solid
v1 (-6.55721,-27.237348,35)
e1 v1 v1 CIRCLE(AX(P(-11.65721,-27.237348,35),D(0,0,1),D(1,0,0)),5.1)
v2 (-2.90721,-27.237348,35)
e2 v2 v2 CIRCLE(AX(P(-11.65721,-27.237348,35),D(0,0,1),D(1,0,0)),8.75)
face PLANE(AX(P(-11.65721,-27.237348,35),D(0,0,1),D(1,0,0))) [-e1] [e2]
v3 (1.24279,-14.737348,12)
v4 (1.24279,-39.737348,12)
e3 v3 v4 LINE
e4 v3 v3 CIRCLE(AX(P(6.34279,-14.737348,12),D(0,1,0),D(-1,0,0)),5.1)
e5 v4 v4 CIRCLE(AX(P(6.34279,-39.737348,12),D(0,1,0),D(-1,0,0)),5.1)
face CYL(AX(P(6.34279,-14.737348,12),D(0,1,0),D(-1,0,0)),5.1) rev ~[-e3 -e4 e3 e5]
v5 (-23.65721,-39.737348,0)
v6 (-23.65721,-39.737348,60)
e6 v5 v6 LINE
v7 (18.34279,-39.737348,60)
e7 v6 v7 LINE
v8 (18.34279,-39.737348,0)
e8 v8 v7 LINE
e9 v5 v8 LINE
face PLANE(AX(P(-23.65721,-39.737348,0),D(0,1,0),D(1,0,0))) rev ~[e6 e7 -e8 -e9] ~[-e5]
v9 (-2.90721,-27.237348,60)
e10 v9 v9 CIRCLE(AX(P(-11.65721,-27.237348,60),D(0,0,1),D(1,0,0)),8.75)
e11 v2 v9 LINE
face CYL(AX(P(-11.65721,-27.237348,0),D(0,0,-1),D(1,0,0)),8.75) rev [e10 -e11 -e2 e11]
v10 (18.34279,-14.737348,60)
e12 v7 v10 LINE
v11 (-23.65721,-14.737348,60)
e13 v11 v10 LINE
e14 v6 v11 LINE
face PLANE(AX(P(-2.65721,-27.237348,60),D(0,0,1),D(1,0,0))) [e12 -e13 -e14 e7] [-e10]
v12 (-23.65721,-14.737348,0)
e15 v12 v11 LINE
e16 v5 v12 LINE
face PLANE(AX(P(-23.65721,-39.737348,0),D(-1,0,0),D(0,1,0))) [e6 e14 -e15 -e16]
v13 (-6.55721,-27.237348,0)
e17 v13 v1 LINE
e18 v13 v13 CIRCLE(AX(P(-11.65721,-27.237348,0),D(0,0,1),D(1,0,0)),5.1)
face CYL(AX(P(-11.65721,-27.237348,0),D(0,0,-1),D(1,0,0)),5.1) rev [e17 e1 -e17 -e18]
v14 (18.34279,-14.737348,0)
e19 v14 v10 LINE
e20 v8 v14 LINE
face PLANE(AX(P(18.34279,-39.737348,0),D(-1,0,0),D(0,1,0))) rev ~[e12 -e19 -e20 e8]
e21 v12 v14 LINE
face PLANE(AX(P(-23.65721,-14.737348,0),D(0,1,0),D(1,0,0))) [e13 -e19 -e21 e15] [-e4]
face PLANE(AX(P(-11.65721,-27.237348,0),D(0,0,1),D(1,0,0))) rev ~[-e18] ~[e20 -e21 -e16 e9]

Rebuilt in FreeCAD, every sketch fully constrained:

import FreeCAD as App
import Part
import Sketcher
from FreeCAD import Vector


def add_polygon(sketch, points):
    """Adds a closed chain of lines whose ends are joined by coincident constraints."""
    first, n = sketch.GeometryCount, len(points)
    for a, b in zip(points, points[1:] + points[:1]):
        sketch.addGeometry(Part.LineSegment(App.Vector(*a, 0), App.Vector(*b, 0)), False)
    for i in range(n):
        sketch.addConstraint(Sketcher.Constraint("Coincident", first + i, 2, first + (i + 1) % n, 1))

doc = App.newDocument("Part")
body = doc.addObject("PartDesign::Body", "Body")

# Sketch on XY plane
sketch1 = body.newObject("Sketcher::SketchObject", "Sketch")
sketch1.AttachmentSupport = (doc.getObject("XY_Plane"), [""])
sketch1.MapMode = "FlatFace"
add_polygon(sketch1, [(-24, -15), (-24, -40), (18, -40), (18, -15)])  # lines 0-3
sketch1.addGeometry(Part.Circle(Vector(-12, -27, 0), Vector(0, 0, 1), 9), False)  # 4
sketch1.addConstraint([
    Sketcher.Constraint("Vertical", 0),
    Sketcher.Constraint("Horizontal", 1),
    Sketcher.Constraint("Vertical", 2),
    Sketcher.Constraint("Horizontal", 3),
    Sketcher.Constraint("Diameter", 4, 17.5),
    Sketcher.Constraint("DistanceX", 1, 1, 1, 2, 42.0),
    Sketcher.Constraint("DistanceY", 0, 2, 0, 1, 25.0),
    Sketcher.Constraint("DistanceX", 0, 2, 4, 3, 12.0),
    Sketcher.Constraint("DistanceY", 0, 2, 4, 3, 12.5),
    Sketcher.Constraint("DistanceX", 4, 3, -1, 1, 11.65721),
    Sketcher.Constraint("DistanceY", 4, 3, -1, 1, 27.237348),
])
pad1 = body.newObject("PartDesign::Pad", "Pad")
pad1.Profile = sketch1
pad1.Length = 60

# Sketch on XY plane
sketch2 = body.newObject("Sketcher::SketchObject", "Sketch001")
sketch2.AttachmentSupport = (doc.getObject("XY_Plane"), [""])
sketch2.MapMode = "FlatFace"
sketch2.addGeometry([
    Part.Circle(Vector(-12, -27, 0), Vector(0, 0, 1), 9),
    Part.Circle(Vector(-12, -27, 0), Vector(0, 0, 1), 5),
], False)
sketch2.addConstraint([
    Sketcher.Constraint("Coincident", 1, 3, 0, 3),
    Sketcher.Constraint("Diameter", 0, 17.5),
    Sketcher.Constraint("Diameter", 1, 10.2),
    Sketcher.Constraint("DistanceX", 0, 3, -1, 1, 11.65721),
    Sketcher.Constraint("DistanceY", 0, 3, -1, 1, 27.237348),
])
pad2 = body.newObject("PartDesign::Pad", "Pad001")
pad2.Profile = sketch2
pad2.Length = 35

# Sketch on XZ plane
sketch3 = body.newObject("Sketcher::SketchObject", "Sketch002")
sketch3.AttachmentSupport = (doc.getObject("XZ_Plane"), [""])
sketch3.MapMode = "FlatFace"
sketch3.AttachmentOffset = App.Placement(Vector(0, 0, 14.737348), App.Rotation())
sketch3.addGeometry(Part.Circle(Vector(6, 12, 0), Vector(0, 0, 1), 5), False)
sketch3.addConstraint([
    Sketcher.Constraint("Diameter", 0, 10.2),
    Sketcher.Constraint("DistanceY", -1, 1, 0, 3, 12.0),
    Sketcher.Constraint("DistanceX", -1, 1, 0, 3, 6.34279),
])
pocket1 = body.newObject("PartDesign::Pocket", "Pocket")
pocket1.Profile = sketch3
pocket1.Length = 47.6
pocket1.Reversed = True

doc.recompute()
